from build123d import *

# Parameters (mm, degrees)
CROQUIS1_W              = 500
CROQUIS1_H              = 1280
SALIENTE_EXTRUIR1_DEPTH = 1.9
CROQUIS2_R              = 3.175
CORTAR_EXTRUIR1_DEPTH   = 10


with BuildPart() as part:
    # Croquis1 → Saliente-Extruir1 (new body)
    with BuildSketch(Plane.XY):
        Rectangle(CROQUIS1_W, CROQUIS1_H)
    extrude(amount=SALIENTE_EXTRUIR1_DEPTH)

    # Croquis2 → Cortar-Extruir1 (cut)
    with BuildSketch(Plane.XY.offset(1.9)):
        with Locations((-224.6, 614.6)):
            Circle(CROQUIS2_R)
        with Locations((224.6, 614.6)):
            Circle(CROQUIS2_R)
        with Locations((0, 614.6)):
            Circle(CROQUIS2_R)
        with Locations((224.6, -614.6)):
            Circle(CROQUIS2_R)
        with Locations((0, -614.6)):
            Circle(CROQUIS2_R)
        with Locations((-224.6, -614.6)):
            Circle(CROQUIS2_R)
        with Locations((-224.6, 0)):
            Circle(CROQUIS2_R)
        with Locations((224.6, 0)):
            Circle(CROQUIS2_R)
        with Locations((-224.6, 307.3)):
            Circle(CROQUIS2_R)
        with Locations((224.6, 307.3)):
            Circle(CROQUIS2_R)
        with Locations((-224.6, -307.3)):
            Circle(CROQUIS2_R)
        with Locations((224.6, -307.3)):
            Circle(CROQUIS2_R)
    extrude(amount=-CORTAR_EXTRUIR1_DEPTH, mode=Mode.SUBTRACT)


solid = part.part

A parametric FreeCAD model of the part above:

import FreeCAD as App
import Part
import Sketcher
from FreeCAD import Vector

doc = App.newDocument("Part")
body = doc.addObject("PartDesign::Body", "Body")

# Sketch on XY plane
sketch1 = body.newObject("Sketcher::SketchObject", "Sketch")
sketch1.AttachmentSupport = (doc.getObject("XY_Plane"), [""])
sketch1.MapMode = "FlatFace"
sketch1.addGeometry(Part.LineSegment(Vector(-250, 640, 0), Vector(-250, -640, 0)), False)
sketch1.addGeometry(Part.LineSegment(Vector(-250, -640, 0), Vector(250, -640, 0)), False)
sketch1.addGeometry(Part.LineSegment(Vector(250, -640, 0), Vector(250, 640, 0)), False)
sketch1.addGeometry(Part.LineSegment(Vector(250, 640, 0), Vector(-250, 640, 0)), False)
sketch1.addConstraint(Sketcher.Constraint("Coincident", 0, 2, 1, 1))
sketch1.addConstraint(Sketcher.Constraint("Coincident", 1, 2, 2, 1))
sketch1.addConstraint(Sketcher.Constraint("Coincident", 2, 2, 3, 1))
sketch1.addConstraint(Sketcher.Constraint("Coincident", 3, 2, 0, 1))
sketch1.addConstraint(Sketcher.Constraint("Vertical", 0))
sketch1.addConstraint(Sketcher.Constraint("Horizontal", 1))
sketch1.addConstraint(Sketcher.Constraint("Vertical", 2))
sketch1.addConstraint(Sketcher.Constraint("Horizontal", 3))
sketch1.addConstraint(Sketcher.Constraint("Symmetric", 0, 2, 2, 2, -1, 1))
sketch1.addConstraint(Sketcher.Constraint("DistanceX", 1, 1, 1, 2, 500.0))
sketch1.addConstraint(Sketcher.Constraint("DistanceY", 0, 2, 0, 1, 1280.0))
pad1 = body.newObject("PartDesign::Pad", "Pad")
pad1.Profile = sketch1
pad1.Length = 1.9

# Sketch on XY plane
sketch2 = body.newObject("Sketcher::SketchObject", "Sketch001")
sketch2.AttachmentSupport = (doc.getObject("XY_Plane"), [""])
sketch2.MapMode = "FlatFace"
sketch2.AttachmentOffset = App.Placement(Vector(0, 0, 1.9), App.Rotation())
sketch2.addGeometry(Part.Circle(Vector(-224.6, 614.6, 0), Vector(0, 0, 1), 3.175), False)
sketch2.addGeometry(Part.Circle(Vector(224.6, 614.6, 0), Vector(0, 0, 1), 3.175), False)
sketch2.addGeometry(Part.Circle(Vector(0, 614.6, 0), Vector(0, 0, 1), 3.175), False)
sketch2.addGeometry(Part.Circle(Vector(224.6, -614.6, 0), Vector(0, 0, 1), 3.175), False)
sketch2.addGeometry(Part.Circle(Vector(0, -614.6, 0), Vector(0, 0, 1), 3.175), False)
sketch2.addGeometry(Part.Circle(Vector(-224.6, -614.6, 0), Vector(0, 0, 1), 3.175), False)
sketch2.addGeometry(Part.Circle(Vector(-224.6, 0, 0), Vector(0, 0, 1), 3.175), False)
sketch2.addGeometry(Part.Circle(Vector(224.6, 0, 0), Vector(0, 0, 1), 3.175), False)
sketch2.addGeometry(Part.Circle(Vector(-224.6, 307.3, 0), Vector(0, 0, 1), 3.175), False)
sketch2.addGeometry(Part.Circle(Vector(224.6, 307.3, 0), Vector(0, 0, 1), 3.175), False)
sketch2.addGeometry(Part.Circle(Vector(-224.6, -307.3, 0), Vector(0, 0, 1), 3.175), False)
sketch2.addGeometry(Part.Circle(Vector(224.6, -307.3, 0), Vector(0, 0, 1), 3.175), False)
sketch2.addConstraint(Sketcher.Constraint("Equal", 0, 1))
sketch2.addConstraint(Sketcher.Constraint("Equal", 1, 2))
sketch2.addConstraint(Sketcher.Constraint("Equal", 2, 3))
sketch2.addConstraint(Sketcher.Constraint("Equal", 3, 4))
sketch2.addConstraint(Sketcher.Constraint("Equal", 4, 5))
sketch2.addConstraint(Sketcher.Constraint("Equal", 5, 6))
sketch2.addConstraint(Sketcher.Constraint("Equal", 6, 7))
sketch2.addConstraint(Sketcher.Constraint("Equal", 7, 8))
sketch2.addConstraint(Sketcher.Constraint("Equal", 8, 9))
sketch2.addConstraint(Sketcher.Constraint("Equal", 9, 10))
sketch2.addConstraint(Sketcher.Constraint("Equal", 10, 11))
sketch2.addConstraint(Sketcher.Constraint("Symmetric", 0, 3, 3, 3, -1, 1))
sketch2.addConstraint(Sketcher.Constraint("Symmetric", 2, 3, 4, 3, -1, 1))
sketch2.addConstraint(Sketcher.Constraint("Symmetric", 1, 3, 5, 3, -1, 1))
sketch2.addConstraint(Sketcher.Constraint("Symmetric", 6, 3, 7, 3, -1, 1))
sketch2.addConstraint(Sketcher.Constraint("Symmetric", 9, 3, 10, 3, -1, 1))
sketch2.addConstraint(Sketcher.Constraint("Symmetric", 8, 3, 11, 3, -1, 1))
sketch2.addConstraint(Sketcher.Constraint("Symmetric", 0, 3, 1, 3, -2))
sketch2.addConstraint(Sketcher.Constraint("Symmetric", 8, 3, 9, 3, -2))
sketch2.addConstraint(Sketcher.Constraint("PointOnObject", 2, 3, -2))
sketch2.addConstraint(Sketcher.Constraint("PointOnObject", 6, 3, -1))
sketch2.addConstraint(Sketcher.Constraint("Horizontal", 1, 3, 2, 3))
sketch2.addConstraint(Sketcher.Constraint("Vertical", 5, 3, 6, 3))
sketch2.addConstraint(Sketcher.Constraint("Vertical", 6, 3, 8, 3))
sketch2.addConstraint(Sketcher.Constraint("Diameter", 0, 6.35))
sketch2.addConstraint(Sketcher.Constraint("DistanceX", 0, 3, -1, 1, 224.6))
sketch2.addConstraint(Sketcher.Constraint("DistanceY", -1, 1, 0, 3, 614.6))
sketch2.addConstraint(Sketcher.Constraint("DistanceY", -1, 1, 8, 3, 307.3))
pocket1 = body.newObject("PartDesign::Pocket", "Pocket")
pocket1.Profile = sketch2
pocket1.Length = 10

doc.recompute()
